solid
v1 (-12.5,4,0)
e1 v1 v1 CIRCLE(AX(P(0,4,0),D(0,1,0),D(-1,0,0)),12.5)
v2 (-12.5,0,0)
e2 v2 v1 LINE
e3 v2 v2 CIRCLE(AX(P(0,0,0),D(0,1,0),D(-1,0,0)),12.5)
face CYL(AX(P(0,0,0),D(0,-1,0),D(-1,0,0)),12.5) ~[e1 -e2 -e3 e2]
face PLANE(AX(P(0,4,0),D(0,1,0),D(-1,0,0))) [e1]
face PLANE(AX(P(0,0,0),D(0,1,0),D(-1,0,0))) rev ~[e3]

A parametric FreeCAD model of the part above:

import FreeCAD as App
import Part
import Sketcher

V = App.Vector
Q = App.Units.Quantity

doc = App.newDocument("Part")
params = doc.addObject("Spreadsheet::Sheet", "Params")
for row, (alias, value) in enumerate([
    ("sketch1_diameter", "25 mm"),
    ("pad1_length", "4 mm"),
], start=1):
    params.set(f"A{row}", alias)
    params.set(f"B{row}", "=" + value)
    params.setAlias(f"B{row}", alias)

body = doc.addObject("PartDesign::Body", "Body")

# Sketch on XZ plane
sketch1 = body.newObject("Sketcher::SketchObject", "Sketch")
sketch1.AttachmentSupport = (doc.getObject("XZ_Plane"), [""])
sketch1.MapMode = "FlatFace"
sketch1.addGeometry(Part.Circle(V(0, 0, 0), V(0, 0, 1), 12), False)
sketch1.addConstraint(Sketcher.Constraint("Coincident", 0, 3, -1, 1))
sketch1.addConstraint(Sketcher.Constraint("Diameter", 0, Q("25 mm")))
sketch1.setExpression("Constraints[1]", "Params.sketch1_diameter")
pad1 = body.newObject("PartDesign::Pad", "Pad")
pad1.Profile = sketch1
pad1.setExpression("Length", "Params.pad1_length")
pad1.Reversed = True

doc.recompute()
